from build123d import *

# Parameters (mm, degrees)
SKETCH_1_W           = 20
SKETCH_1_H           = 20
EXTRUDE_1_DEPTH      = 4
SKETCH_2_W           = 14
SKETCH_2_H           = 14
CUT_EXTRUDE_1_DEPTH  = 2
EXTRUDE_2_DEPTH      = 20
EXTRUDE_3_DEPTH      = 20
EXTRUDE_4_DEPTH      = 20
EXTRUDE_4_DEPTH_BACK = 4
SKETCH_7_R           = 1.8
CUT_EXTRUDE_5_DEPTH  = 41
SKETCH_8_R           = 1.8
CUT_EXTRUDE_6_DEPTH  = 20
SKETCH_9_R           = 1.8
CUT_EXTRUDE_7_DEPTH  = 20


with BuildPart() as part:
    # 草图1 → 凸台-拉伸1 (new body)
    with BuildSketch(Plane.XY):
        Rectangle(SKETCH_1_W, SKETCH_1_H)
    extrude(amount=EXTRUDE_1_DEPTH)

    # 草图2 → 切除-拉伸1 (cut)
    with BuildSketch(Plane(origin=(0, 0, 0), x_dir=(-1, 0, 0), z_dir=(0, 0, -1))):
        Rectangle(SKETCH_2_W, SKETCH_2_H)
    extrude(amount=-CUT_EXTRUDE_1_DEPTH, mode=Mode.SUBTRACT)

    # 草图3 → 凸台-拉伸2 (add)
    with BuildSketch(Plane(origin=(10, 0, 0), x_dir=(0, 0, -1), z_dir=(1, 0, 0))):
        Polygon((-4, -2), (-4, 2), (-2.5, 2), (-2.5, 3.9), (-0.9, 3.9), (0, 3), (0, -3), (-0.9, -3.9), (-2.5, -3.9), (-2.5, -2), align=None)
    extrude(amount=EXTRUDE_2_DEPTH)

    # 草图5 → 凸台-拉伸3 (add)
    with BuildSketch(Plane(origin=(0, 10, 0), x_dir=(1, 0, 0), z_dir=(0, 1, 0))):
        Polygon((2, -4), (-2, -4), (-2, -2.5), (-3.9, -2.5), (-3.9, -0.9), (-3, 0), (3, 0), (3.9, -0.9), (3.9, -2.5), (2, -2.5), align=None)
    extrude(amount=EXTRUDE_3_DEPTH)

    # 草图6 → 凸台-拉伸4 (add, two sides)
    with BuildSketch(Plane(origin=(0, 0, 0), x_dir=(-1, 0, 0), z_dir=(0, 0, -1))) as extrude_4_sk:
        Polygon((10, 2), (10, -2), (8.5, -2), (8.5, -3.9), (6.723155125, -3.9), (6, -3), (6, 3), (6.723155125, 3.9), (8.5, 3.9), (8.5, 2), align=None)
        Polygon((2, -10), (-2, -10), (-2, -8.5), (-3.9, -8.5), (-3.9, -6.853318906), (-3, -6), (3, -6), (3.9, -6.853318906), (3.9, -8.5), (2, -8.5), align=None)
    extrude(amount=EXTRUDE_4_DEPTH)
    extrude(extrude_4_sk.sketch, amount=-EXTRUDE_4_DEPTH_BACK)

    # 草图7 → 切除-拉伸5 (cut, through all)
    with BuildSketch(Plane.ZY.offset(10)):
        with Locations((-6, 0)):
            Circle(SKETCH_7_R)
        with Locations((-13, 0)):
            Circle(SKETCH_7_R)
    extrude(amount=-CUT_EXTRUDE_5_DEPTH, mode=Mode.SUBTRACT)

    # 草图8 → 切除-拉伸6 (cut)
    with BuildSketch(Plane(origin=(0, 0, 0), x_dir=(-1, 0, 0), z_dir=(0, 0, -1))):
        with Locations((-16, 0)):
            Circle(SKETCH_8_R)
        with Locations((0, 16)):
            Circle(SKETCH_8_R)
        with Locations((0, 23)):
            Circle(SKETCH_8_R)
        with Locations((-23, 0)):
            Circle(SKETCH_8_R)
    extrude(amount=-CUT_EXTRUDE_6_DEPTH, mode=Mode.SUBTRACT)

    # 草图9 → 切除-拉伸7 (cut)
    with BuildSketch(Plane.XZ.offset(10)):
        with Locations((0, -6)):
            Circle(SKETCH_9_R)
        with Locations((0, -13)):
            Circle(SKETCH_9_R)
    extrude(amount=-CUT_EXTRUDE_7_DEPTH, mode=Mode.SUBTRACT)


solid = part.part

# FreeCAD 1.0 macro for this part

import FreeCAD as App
import Part
import Sketcher

V = App.Vector
Q = App.Units.Quantity


def add_polygon(sketch, points):
    """Adds a closed chain of lines whose ends are joined by coincident constraints."""
    first, n = sketch.GeometryCount, len(points)
    for a, b in zip(points, points[1:] + points[:1]):
        sketch.addGeometry(Part.LineSegment(App.Vector(*a, 0), App.Vector(*b, 0)), False)
    for i in range(n):
        sketch.addConstraint(Sketcher.Constraint("Coincident", first + i, 2, first + (i + 1) % n, 1))

doc = App.newDocument("Part")
body = doc.addObject("PartDesign::Body", "Body")

# Sketch on XY plane
sketch1 = body.newObject("Sketcher::SketchObject", "Sketch")
sketch1.AttachmentSupport = (doc.getObject("XY_Plane"), [""])
sketch1.MapMode = "FlatFace"
add_polygon(sketch1, [(-10, 10), (-10, -10), (10, -10), (10, 10)])  # lines 0-3
sketch1.addConstraint(Sketcher.Constraint("Vertical", 0))
sketch1.addConstraint(Sketcher.Constraint("Horizontal", 1))
sketch1.addConstraint(Sketcher.Constraint("Vertical", 2))
sketch1.addConstraint(Sketcher.Constraint("Horizontal", 3))
sketch1.addConstraint(Sketcher.Constraint("Symmetric", 0, 2, 2, 2, -1, 1))
sketch1.addConstraint(Sketcher.Constraint("Equal", 3, 0))
sketch1.addConstraint(Sketcher.Constraint("DistanceX", 1, 1, 1, 2, Q("20 mm")))
pad1 = body.newObject("PartDesign::Pad", "Pad")
pad1.Profile = sketch1
pad1.Length = 4

# Sketch on XY plane
sketch2 = body.newObject("Sketcher::SketchObject", "Sketch001")
sketch2.AttachmentSupport = (doc.getObject("XY_Plane"), [""])
sketch2.MapMode = "FlatFace"
add_polygon(sketch2, [(7, 7), (7, -7), (-7, -7), (-7, 7)])  # lines 0-3
sketch2.addConstraint(Sketcher.Constraint("Vertical", 0))
sketch2.addConstraint(Sketcher.Constraint("Horizontal", 1))
sketch2.addConstraint(Sketcher.Constraint("Vertical", 2))
sketch2.addConstraint(Sketcher.Constraint("Horizontal", 3))
sketch2.addConstraint(Sketcher.Constraint("Symmetric", 0, 2, 2, 2, -1, 1))
sketch2.addConstraint(Sketcher.Constraint("Equal", 3, 0))
sketch2.addConstraint(Sketcher.Constraint("DistanceX", 1, 2, 1, 1, Q("14 mm")))
pocket1 = body.newObject("PartDesign::Pocket", "Pocket")
pocket1.Profile = sketch2
pocket1.Length = 2
pocket1.Reversed = True

# Sketch on YZ plane
sketch3 = body.newObject("Sketcher::SketchObject", "Sketch002")
sketch3.AttachmentSupport = (doc.getObject("YZ_Plane"), [""])
sketch3.MapMode = "FlatFace"
sketch3.AttachmentOffset = App.Placement(V(0, 0, 10), App.Rotation())
add_polygon(sketch3, [(2, 4), (-2, 4), (-2, 2.5), (-3.9, 2.5), (-3.9, 0.9), (-3, 0), (3, 0), (3.9, 0.9), (3.9, 2.5), (2, 2.5)])  # lines 0-9
sketch3.addConstraint(Sketcher.Constraint("Horizontal", 0))
sketch3.addConstraint(Sketcher.Constraint("Vertical", 1))
sketch3.addConstraint(Sketcher.Constraint("Horizontal", 2))
sketch3.addConstraint(Sketcher.Constraint("Vertical", 3))
sketch3.addConstraint(Sketcher.Constraint("Horizontal", 5))
sketch3.addConstraint(Sketcher.Constraint("Vertical", 7))
sketch3.addConstraint(Sketcher.Constraint("Horizontal", 8))
sketch3.addConstraint(Sketcher.Constraint("Vertical", 9))
sketch3.addConstraint(Sketcher.Constraint("Symmetric", 4, 2, 5, 2, -1, 1))
sketch3.addConstraint(Sketcher.Constraint("Symmetric", 3, 2, 6, 2, -2))
sketch3.addConstraint(Sketcher.Constraint("Symmetric", 1, 2, 8, 2, -2))
sketch3.addConstraint(Sketcher.Constraint("Perpendicular", 4, 6))
sketch3.addConstraint(Sketcher.Constraint("DistanceX", 0, 2, 0, 1, Q("4 mm")))
sketch3.addConstraint(Sketcher.Constraint("DistanceX", 5, 1, 5, 2, Q("6 mm")))
sketch3.addConstraint(Sketcher.Constraint("DistanceX", 2, 2, 2, 1, Q("1.9 mm")))
sketch3.addConstraint(Sketcher.Constraint("DistanceY", 1, 2, 1, 1, Q("1.5 mm")))
sketch3.addConstraint(Sketcher.Constraint("DistanceY", 3, 2, 3, 1, Q("1.6 mm")))
pad2 = body.newObject("PartDesign::Pad", "Pad001")
pad2.Profile = sketch3
pad2.Length = 20

# Sketch on XZ plane
sketch4 = body.newObject("Sketcher::SketchObject", "Sketch003")
sketch4.AttachmentSupport = (doc.getObject("XZ_Plane"), [""])
sketch4.MapMode = "FlatFace"
sketch4.AttachmentOffset = App.Placement(V(0, 0, -10), App.Rotation())
add_polygon(sketch4, [(-2, 4), (2, 4), (2, 2.5), (3.9, 2.5), (3.9, 0.9), (3, 0), (-3, 0), (-3.9, 0.9), (-3.9, 2.5), (-2, 2.5)])  # lines 0-9
sketch4.addConstraint(Sketcher.Constraint("Horizontal", 0))
sketch4.addConstraint(Sketcher.Constraint("Vertical", 1))
sketch4.addConstraint(Sketcher.Constraint("Horizontal", 2))
sketch4.addConstraint(Sketcher.Constraint("Vertical", 3))
sketch4.addConstraint(Sketcher.Constraint("Horizontal", 5))
sketch4.addConstraint(Sketcher.Constraint("Vertical", 7))
sketch4.addConstraint(Sketcher.Constraint("Horizontal", 8))
sketch4.addConstraint(Sketcher.Constraint("Vertical", 9))
sketch4.addConstraint(Sketcher.Constraint("Symmetric", 4, 2, 5, 2, -1, 1))
sketch4.addConstraint(Sketcher.Constraint("Symmetric", 3, 2, 6, 2, -2))
sketch4.addConstraint(Sketcher.Constraint("Symmetric", 1, 2, 8, 2, -2))
sketch4.addConstraint(Sketcher.Constraint("Perpendicular", 4, 6))
sketch4.addConstraint(Sketcher.Constraint("DistanceX", 0, 1, 0, 2, Q("4 mm")))
sketch4.addConstraint(Sketcher.Constraint("DistanceX", 5, 2, 5, 1, Q("6 mm")))
sketch4.addConstraint(Sketcher.Constraint("DistanceX", 2, 1, 2, 2, Q("1.9 mm")))
sketch4.addConstraint(Sketcher.Constraint("DistanceY", 1, 2, 1, 1, Q("1.5 mm")))
sketch4.addConstraint(Sketcher.Constraint("DistanceY", 3, 2, 3, 1, Q("1.6 mm")))
pad3 = body.newObject("PartDesign::Pad", "Pad002")
pad3.Profile = sketch4
pad3.Length = 20
pad3.Reversed = True

# Sketch on XY plane
sketch5 = body.newObject("Sketcher::SketchObject", "Sketch004")
sketch5.AttachmentSupport = (doc.getObject("XY_Plane"), [""])
sketch5.MapMode = "FlatFace"
add_polygon(sketch5, [(-10, -2), (-10, 2), (-8.5, 2), (-8.5, 3.9), (-6.7, 3.9), (-6, 3), (-6, -3), (-6.7, -3.9), (-8.5, -3.9), (-8.5, -2)])  # lines 0-9
add_polygon(sketch5, [(2, -10), (-2, -10), (-2, -8.5), (-3.9, -8.5), (-3.9, -6.9), (-3, -6), (3, -6), (3.9, -6.9), (3.9, -8.5), (2, -8.5)])  # lines 10-19
sketch5.addConstraint(Sketcher.Constraint("Vertical", 0))
sketch5.addConstraint(Sketcher.Constraint("Horizontal", 1))
sketch5.addConstraint(Sketcher.Constraint("Vertical", 2))
sketch5.addConstraint(Sketcher.Constraint("Horizontal", 3))
sketch5.addConstraint(Sketcher.Constraint("Vertical", 5))
sketch5.addConstraint(Sketcher.Constraint("Horizontal", 7))
sketch5.addConstraint(Sketcher.Constraint("Vertical", 8))
sketch5.addConstraint(Sketcher.Constraint("Horizontal", 9))
sketch5.addConstraint(Sketcher.Constraint("Horizontal", 10))
sketch5.addConstraint(Sketcher.Constraint("Vertical", 11))
sketch5.addConstraint(Sketcher.Constraint("Horizontal", 12))
sketch5.addConstraint(Sketcher.Constraint("Vertical", 13))
sketch5.addConstraint(Sketcher.Constraint("Horizontal", 15))
sketch5.addConstraint(Sketcher.Constraint("Vertical", 17))
sketch5.addConstraint(Sketcher.Constraint("Horizontal", 18))
sketch5.addConstraint(Sketcher.Constraint("Vertical", 19))
sketch5.addConstraint(Sketcher.Constraint("Symmetric", 13, 2, 16, 2, -2))
sketch5.addConstraint(Sketcher.Constraint("Symmetric", 11, 2, 18, 2, -2))
sketch5.addConstraint(Sketcher.Constraint("Symmetric", 3, 2, 6, 2, -1))
sketch5.addConstraint(Sketcher.Constraint("Symmetric", 1, 2, 8, 2, -1))
sketch5.addConstraint(Sketcher.Constraint("Equal", 10, 0))
sketch5.addConstraint(Sketcher.Constraint("Equal", 18, 2))
sketch5.addConstraint(Sketcher.Constraint("Equal", 15, 5))
sketch5.addConstraint(Sketcher.Constraint("Equal", 9, 11))
sketch5.addConstraint(Sketcher.Constraint("Equal", 4, 6))
sketch5.addConstraint(Sketcher.Constraint("Equal", 14, 16))
sketch5.addConstraint(Sketcher.Constraint("DistanceX", 10, 2, 10, 1, Q("4 mm")))
sketch5.addConstraint(Sketcher.Constraint("DistanceX", 15, 1, 15, 2, Q("6 mm")))
sketch5.addConstraint(Sketcher.Constraint("DistanceX", 1, 1, 1, 2, Q("1.5 mm")))
sketch5.addConstraint(Sketcher.Constraint("DistanceX", 12, 2, 12, 1, Q("1.9 mm")))
sketch5.addConstraint(Sketcher.Constraint("DistanceX", 0, 2, -1, 1, Q("10 mm")))
sketch5.addConstraint(Sketcher.Constraint("DistanceX", 4, 2, -1, 1, Q("6 mm")))
sketch5.addConstraint(Sketcher.Constraint("DistanceY", 10, 2, -1, 1, Q("10 mm")))
sketch5.addConstraint(Sketcher.Constraint("DistanceY", 14, 2, -1, 1, Q("6 mm")))
sketch5.addConstraint(Sketcher.Constraint("DistanceY", 13, 1, 13, 2, Q("1.646681 mm")))
sketch5.addConstraint(Sketcher.Constraint("DistanceX", 3, 1, 3, 2, Q("1.776845 mm")))
pad4 = body.newObject("PartDesign::Pad", "Pad003")
pad4.Profile = sketch5
pad4.Type = "TwoLengths"
pad4.Length = 20
pad4.Length2 = 4
pad4.Reversed = True

# Sketch on YZ plane
sketch6 = body.newObject("Sketcher::SketchObject", "Sketch005")
sketch6.AttachmentSupport = (doc.getObject("YZ_Plane"), [""])
sketch6.MapMode = "FlatFace"
sketch6.AttachmentOffset = App.Placement(V(0, 0, -10), App.Rotation())
sketch6.addGeometry(Part.Circle(V(0, -6, 0), V(0, 0, 1), 1.8), False)
sketch6.addGeometry(Part.Circle(V(0, -13, 0), V(0, 0, 1), 1.8), False)
sketch6.addConstraint(Sketcher.Constraint("Equal", 0, 1))
sketch6.addConstraint(Sketcher.Constraint("PointOnObject", 0, 3, -2))
sketch6.addConstraint(Sketcher.Constraint("PointOnObject", 1, 3, -2))
sketch6.addConstraint(Sketcher.Constraint("Diameter", 0, Q("3.6 mm")))
sketch6.addConstraint(Sketcher.Constraint("DistanceY", 0, 3, -1, 1, Q("6 mm")))
sketch6.addConstraint(Sketcher.Constraint("DistanceY", 1, 3, -1, 1, Q("13 mm")))
pocket2 = body.newObject("PartDesign::Pocket", "Pocket001")
pocket2.Profile = sketch6
pocket2.Type = "ThroughAll"
pocket2.Reversed = True

# Sketch on XY plane
sketch7 = body.newObject("Sketcher::SketchObject", "Sketch006")
sketch7.AttachmentSupport = (doc.getObject("XY_Plane"), [""])
sketch7.MapMode = "FlatFace"
sketch7.addGeometry(Part.Circle(V(16, 0, 0), V(0, 0, 1), 1.8), False)
sketch7.addGeometry(Part.Circle(V(0, 16, 0), V(0, 0, 1), 1.8), False)
sketch7.addGeometry(Part.Circle(V(0, 23, 0), V(0, 0, 1), 1.8), False)
sketch7.addGeometry(Part.Circle(V(23, 0, 0), V(0, 0, 1), 1.8), False)
sketch7.addConstraint(Sketcher.Constraint("Equal", 0, 1))
sketch7.addConstraint(Sketcher.Constraint("Equal", 1, 2))
sketch7.addConstraint(Sketcher.Constraint("Equal", 2, 3))
sketch7.addConstraint(Sketcher.Constraint("PointOnObject", 0, 3, -1))
sketch7.addConstraint(Sketcher.Constraint("PointOnObject", 1, 3, -2))
sketch7.addConstraint(Sketcher.Constraint("PointOnObject", 2, 3, -2))
sketch7.addConstraint(Sketcher.Constraint("PointOnObject", 3, 3, -1))
sketch7.addConstraint(Sketcher.Constraint("Diameter", 0, Q("3.6 mm")))
sketch7.addConstraint(Sketcher.Constraint("DistanceX", -1, 1, 0, 3, Q("16 mm")))
sketch7.addConstraint(Sketcher.Constraint("DistanceY", -1, 1, 1, 3, Q("16 mm")))
sketch7.addConstraint(Sketcher.Constraint("DistanceY", -1, 1, 2, 3, Q("23 mm")))
sketch7.addConstraint(Sketcher.Constraint("DistanceX", -1, 1, 3, 3, Q("23 mm")))
pocket3 = body.newObject("PartDesign::Pocket", "Pocket002")
pocket3.Profile = sketch7
pocket3.Length = 20
pocket3.Reversed = True

# Sketch on XZ plane
sketch8 = body.newObject("Sketcher::SketchObject", "Sketch007")
sketch8.AttachmentSupport = (doc.getObject("XZ_Plane"), [""])
sketch8.MapMode = "FlatFace"
sketch8.AttachmentOffset = App.Placement(V(0, 0, 10), App.Rotation())
sketch8.addGeometry(Part.Circle(V(0, -6, 0), V(0, 0, 1), 1.8), False)
sketch8.addGeometry(Part.Circle(V(0, -13, 0), V(0, 0, 1), 1.8), False)
sketch8.addConstraint(Sketcher.Constraint("Equal", 0, 1))
sketch8.addConstraint(Sketcher.Constraint("PointOnObject", 0, 3, -2))
sketch8.addConstraint(Sketcher.Constraint("PointOnObject", 1, 3, -2))
sketch8.addConstraint(Sketcher.Constraint("Diameter", 0, Q("3.6 mm")))
sketch8.addConstraint(Sketcher.Constraint("DistanceY", 0, 3, -1, 1, Q("6 mm")))
sketch8.addConstraint(Sketcher.Constraint("DistanceY", 1, 3, -1, 1, Q("13 mm")))
pocket4 = body.newObject("PartDesign::Pocket", "Pocket003")
pocket4.Profile = sketch8
pocket4.Length = 20

doc.recompute()
